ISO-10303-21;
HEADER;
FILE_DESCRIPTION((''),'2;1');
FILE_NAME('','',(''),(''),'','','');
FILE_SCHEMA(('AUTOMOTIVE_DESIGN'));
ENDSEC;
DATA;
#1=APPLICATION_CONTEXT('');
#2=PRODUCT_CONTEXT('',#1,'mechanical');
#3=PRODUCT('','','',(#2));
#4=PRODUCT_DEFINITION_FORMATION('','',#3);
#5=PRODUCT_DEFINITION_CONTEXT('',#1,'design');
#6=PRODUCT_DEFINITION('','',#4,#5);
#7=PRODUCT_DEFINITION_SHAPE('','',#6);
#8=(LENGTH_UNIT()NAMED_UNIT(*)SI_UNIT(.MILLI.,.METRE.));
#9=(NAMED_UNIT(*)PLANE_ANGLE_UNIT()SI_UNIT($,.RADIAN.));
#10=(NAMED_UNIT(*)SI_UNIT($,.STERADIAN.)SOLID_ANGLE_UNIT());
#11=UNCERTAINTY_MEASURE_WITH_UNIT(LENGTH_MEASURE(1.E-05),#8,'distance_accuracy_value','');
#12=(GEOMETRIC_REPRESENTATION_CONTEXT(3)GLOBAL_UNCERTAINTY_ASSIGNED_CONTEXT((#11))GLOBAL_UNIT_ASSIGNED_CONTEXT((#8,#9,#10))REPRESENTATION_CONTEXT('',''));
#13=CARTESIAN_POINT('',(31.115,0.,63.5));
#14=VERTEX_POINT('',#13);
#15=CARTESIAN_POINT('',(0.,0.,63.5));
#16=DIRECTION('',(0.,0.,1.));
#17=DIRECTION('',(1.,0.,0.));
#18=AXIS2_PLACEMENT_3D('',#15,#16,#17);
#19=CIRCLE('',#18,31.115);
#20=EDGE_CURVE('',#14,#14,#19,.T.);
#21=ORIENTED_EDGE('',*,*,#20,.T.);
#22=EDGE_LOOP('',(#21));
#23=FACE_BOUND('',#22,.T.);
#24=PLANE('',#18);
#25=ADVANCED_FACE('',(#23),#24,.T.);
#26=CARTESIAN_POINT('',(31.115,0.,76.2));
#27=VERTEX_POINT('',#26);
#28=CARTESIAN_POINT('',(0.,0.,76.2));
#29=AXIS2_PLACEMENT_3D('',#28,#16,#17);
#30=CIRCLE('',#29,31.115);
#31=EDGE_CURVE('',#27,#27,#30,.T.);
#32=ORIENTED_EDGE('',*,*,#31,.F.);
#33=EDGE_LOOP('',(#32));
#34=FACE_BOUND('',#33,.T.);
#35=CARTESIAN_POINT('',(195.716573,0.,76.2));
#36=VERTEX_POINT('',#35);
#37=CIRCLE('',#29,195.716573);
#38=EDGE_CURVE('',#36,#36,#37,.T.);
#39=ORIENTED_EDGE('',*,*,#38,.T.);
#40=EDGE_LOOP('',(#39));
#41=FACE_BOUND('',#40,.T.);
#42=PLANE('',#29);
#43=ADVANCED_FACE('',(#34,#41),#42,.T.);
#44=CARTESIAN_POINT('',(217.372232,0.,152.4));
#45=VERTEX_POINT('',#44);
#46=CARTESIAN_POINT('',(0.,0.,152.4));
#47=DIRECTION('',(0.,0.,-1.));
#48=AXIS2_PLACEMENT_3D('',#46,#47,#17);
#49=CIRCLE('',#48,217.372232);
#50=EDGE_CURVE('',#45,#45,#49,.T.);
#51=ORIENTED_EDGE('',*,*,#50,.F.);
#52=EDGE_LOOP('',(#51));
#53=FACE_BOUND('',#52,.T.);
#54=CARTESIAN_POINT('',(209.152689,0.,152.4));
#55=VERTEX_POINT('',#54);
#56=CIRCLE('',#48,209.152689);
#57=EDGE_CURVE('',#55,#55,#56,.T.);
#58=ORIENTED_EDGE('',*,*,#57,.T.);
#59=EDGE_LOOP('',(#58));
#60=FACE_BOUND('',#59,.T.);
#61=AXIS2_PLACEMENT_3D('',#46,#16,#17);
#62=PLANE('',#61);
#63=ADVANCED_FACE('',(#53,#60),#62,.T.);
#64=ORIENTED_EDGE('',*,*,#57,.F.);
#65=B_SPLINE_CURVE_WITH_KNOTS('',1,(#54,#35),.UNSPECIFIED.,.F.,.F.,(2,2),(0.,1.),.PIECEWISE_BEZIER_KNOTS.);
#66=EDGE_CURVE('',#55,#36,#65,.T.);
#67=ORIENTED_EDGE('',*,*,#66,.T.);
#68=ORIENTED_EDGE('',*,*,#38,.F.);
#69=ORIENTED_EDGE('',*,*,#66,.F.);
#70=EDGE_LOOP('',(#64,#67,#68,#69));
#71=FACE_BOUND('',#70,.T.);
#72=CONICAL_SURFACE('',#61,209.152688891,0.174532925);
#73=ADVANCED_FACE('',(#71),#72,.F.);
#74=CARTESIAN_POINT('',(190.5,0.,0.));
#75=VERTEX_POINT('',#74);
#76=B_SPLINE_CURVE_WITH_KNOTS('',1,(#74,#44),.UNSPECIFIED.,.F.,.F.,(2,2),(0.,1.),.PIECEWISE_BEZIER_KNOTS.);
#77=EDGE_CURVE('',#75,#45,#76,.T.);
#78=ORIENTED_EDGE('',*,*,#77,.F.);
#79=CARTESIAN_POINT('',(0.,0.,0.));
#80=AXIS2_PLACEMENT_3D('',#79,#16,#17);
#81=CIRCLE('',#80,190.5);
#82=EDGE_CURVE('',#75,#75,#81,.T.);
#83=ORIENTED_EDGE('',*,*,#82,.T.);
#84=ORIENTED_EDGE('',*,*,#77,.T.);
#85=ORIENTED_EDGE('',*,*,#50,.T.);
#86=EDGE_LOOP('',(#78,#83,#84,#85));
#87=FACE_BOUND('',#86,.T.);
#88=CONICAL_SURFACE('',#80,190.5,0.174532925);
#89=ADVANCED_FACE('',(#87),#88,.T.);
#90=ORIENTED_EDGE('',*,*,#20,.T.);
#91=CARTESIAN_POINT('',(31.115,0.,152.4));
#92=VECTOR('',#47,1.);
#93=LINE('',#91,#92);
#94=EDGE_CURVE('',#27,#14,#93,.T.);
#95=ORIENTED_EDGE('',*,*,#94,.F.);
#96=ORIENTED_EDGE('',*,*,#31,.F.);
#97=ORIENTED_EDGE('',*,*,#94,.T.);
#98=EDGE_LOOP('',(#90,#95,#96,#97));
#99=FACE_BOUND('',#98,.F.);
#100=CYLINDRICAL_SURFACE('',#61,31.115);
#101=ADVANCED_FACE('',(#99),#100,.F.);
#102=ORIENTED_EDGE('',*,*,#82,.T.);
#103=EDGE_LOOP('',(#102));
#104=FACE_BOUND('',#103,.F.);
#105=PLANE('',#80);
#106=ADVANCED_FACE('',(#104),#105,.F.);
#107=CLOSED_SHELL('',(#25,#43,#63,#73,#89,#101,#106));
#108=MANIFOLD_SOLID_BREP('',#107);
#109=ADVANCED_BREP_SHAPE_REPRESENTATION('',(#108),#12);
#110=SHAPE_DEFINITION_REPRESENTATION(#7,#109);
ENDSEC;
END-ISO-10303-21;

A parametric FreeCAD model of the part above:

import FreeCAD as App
import Part
import Sketcher

V = App.Vector
Q = App.Units.Quantity

doc = App.newDocument("Part")
body = doc.addObject("PartDesign::Body", "Body")

# Sketch on XY plane
sketch1 = doc.addObject("Sketcher::SketchObject", "Sketch")
body.addObject(sketch1)
sketch1.AttachmentSupport = (doc.XY_Plane, [""])
sketch1.MapMode = "FlatFace"
sketch1.addGeometry(Part.Circle(V(0, 0, 0), V(0, 0, 1), 190), False)
sketch1.addConstraint(Sketcher.Constraint("Coincident", 0, 3, -1, 1))
sketch1.addConstraint(Sketcher.Constraint("Diameter", 0, Q("15 in")))
pad1 = doc.addObject("PartDesign::Pad", "Pad")
body.addObject(pad1)
pad1.Profile = sketch1
pad1.Length = Q("6 in")
pad1.TaperAngle = 10

# Sketch on XY plane
sketch2 = doc.addObject("Sketcher::SketchObject", "Sketch001")
body.addObject(sketch2)
sketch2.AttachmentSupport = (doc.XY_Plane, [""])
sketch2.MapMode = "FlatFace"
sketch2.AttachmentOffset = App.Placement(V(0, 0, 6 * 25.4), App.Rotation())
sketch2.addGeometry(Part.Circle(V(0, 0, 0), V(0, 0, 1), 31), False)
sketch2.addConstraint(Sketcher.Constraint("Coincident", 0, 3, -1, 1))
sketch2.addConstraint(Sketcher.Constraint("Diameter", 0, Q("2.45 in")))
pocket1 = doc.addObject("PartDesign::Pocket", "Pocket")
body.addObject(pocket1)
pocket1.Profile = sketch2
pocket1.Length = Q("3.5 in")

# Sketch on XY plane
sketch3 = doc.addObject("Sketcher::SketchObject", "Sketch002")
body.addObject(sketch3)
sketch3.AttachmentSupport = (doc.XY_Plane, [""])
sketch3.MapMode = "FlatFace"
sketch3.AttachmentOffset = App.Placement(V(0, 0, 6 * 25.4), App.Rotation())
sketch3.addGeometry(Part.Circle(V(0, 0, 0), V(0, 0, 1), 209), False)
sketch3.addConstraint(Sketcher.Constraint("Coincident", 0, 3, -1, 1))
sketch3.addConstraint(Sketcher.Constraint("Diameter", 0, 418.305378))
pocket2 = doc.addObject("PartDesign::Pocket", "Pocket001")
body.addObject(pocket2)
pocket2.Profile = sketch3
pocket2.Length = Q("3 in")
pocket2.TaperAngle = -10

doc.recompute()
